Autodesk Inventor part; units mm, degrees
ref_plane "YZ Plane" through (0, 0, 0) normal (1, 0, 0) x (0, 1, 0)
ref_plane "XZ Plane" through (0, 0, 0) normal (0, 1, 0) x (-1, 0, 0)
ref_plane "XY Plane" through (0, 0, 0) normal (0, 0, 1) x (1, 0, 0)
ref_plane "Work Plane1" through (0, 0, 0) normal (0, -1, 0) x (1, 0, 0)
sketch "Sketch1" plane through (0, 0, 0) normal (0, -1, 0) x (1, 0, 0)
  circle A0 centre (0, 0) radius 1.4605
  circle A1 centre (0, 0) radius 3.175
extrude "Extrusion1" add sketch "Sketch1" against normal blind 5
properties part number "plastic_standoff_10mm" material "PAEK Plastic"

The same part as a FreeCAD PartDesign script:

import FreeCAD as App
import Part
import Sketcher
Q = App.Units.Quantity

doc = App.newDocument("Part")
body = doc.addObject("PartDesign::Body", "Body")

# Sketch on XZ plane
sketch1 = body.newObject("Sketcher::SketchObject", "Sketch")
sketch1.AttachmentSupport = (doc.getObject("XZ_Plane"), [""])
sketch1.MapMode = "FlatFace"
sketch1.addGeometry([
    Part.Circle(App.Vector(0, 0, 0), App.Vector(0, 0, 1), 3.2),
    Part.Circle(App.Vector(0, 0, 0), App.Vector(0, 0, 1), 1.5),
], False)
sketch1.addConstraint([
    Sketcher.Constraint("Coincident", 0, 3, -1, 1),
    Sketcher.Constraint("Coincident", 1, 3, -1, 1),
    Sketcher.Constraint("Diameter", 0, Q("0.25 in")),
    Sketcher.Constraint("Diameter", 1, Q("0.115 in")),
])
pad1 = body.newObject("PartDesign::Pad", "Pad")
pad1.Profile = sketch1
pad1.Length = 5
pad1.Reversed = True

doc.recompute()
